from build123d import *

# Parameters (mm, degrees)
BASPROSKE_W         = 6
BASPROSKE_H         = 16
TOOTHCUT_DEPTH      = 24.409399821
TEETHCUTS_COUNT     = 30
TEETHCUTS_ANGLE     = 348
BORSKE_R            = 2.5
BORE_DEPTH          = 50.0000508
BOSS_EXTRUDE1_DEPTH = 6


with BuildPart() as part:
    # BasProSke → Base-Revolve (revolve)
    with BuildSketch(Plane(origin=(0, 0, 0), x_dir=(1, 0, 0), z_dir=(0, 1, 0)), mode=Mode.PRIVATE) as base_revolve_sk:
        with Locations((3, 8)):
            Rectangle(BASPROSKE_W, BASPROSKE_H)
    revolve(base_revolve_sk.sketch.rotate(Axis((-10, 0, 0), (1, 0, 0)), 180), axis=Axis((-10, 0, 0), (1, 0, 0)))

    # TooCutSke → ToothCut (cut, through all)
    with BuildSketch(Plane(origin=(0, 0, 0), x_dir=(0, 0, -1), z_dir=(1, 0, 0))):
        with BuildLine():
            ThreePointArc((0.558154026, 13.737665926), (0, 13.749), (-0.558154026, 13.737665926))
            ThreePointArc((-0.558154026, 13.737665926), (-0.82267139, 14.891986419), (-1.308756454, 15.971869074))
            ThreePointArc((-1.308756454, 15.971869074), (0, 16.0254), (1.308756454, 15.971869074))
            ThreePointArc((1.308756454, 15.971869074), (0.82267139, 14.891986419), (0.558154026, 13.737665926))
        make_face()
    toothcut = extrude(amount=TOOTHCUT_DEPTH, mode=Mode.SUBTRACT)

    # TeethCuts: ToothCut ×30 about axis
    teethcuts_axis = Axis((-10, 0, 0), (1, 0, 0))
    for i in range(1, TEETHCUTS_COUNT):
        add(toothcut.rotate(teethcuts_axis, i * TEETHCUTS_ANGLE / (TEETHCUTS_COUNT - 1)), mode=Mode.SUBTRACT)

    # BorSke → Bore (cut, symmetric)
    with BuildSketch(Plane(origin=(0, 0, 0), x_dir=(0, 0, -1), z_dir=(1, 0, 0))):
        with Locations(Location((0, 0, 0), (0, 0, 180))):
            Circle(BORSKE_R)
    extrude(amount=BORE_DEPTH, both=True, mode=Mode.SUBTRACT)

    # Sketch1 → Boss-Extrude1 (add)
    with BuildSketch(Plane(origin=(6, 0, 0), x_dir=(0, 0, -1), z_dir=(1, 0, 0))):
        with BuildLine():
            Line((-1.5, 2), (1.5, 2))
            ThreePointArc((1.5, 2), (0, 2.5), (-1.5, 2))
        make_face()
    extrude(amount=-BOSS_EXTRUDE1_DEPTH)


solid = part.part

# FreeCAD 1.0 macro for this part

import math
import FreeCAD as App
import Part
import Sketcher

V = App.Vector
Q = App.Units.Quantity

doc = App.newDocument("Part")
body = doc.addObject("PartDesign::Body", "Body")

# Sketch on XZ plane
sketch1 = doc.addObject("Sketcher::SketchObject", "Sketch")
body.addObject(sketch1)
sketch1.AttachmentSupport = (doc.XZ_Plane, [""])
sketch1.MapMode = "FlatFace"
sketch1.addGeometry(Part.LineSegment(V(0, -16, 0), V(0, 0, 0)), False)
sketch1.addGeometry(Part.LineSegment(V(0, 0, 0), V(6, 0, 0)), False)
sketch1.addGeometry(Part.LineSegment(V(6, 0, 0), V(6, -16, 0)), False)
sketch1.addGeometry(Part.LineSegment(V(6, -16, 0), V(0, -16, 0)), False)
sketch1.addConstraint(Sketcher.Constraint("Coincident", 0, 2, 1, 1))
sketch1.addConstraint(Sketcher.Constraint("Coincident", 1, 2, 2, 1))
sketch1.addConstraint(Sketcher.Constraint("Coincident", 2, 2, 3, 1))
sketch1.addConstraint(Sketcher.Constraint("Coincident", 3, 2, 0, 1))
sketch1.addConstraint(Sketcher.Constraint("Vertical", 0))
sketch1.addConstraint(Sketcher.Constraint("Horizontal", 1))
sketch1.addConstraint(Sketcher.Constraint("Vertical", 2))
sketch1.addConstraint(Sketcher.Constraint("Horizontal", 3))
sketch1.addConstraint(Sketcher.Constraint("Coincident", 0, 2, -1, 1))
sketch1.addConstraint(Sketcher.Constraint("DistanceX", 1, 1, 1, 2, Q("6 mm")))
sketch1.addConstraint(Sketcher.Constraint("DistanceY", 0, 1, 0, 2, Q("16 mm")))
revolution = doc.addObject("PartDesign::Revolution", "Revolution")
body.addObject(revolution)
revolution.Profile = sketch1
revolution.ReferenceAxis = (sketch1, ["H_Axis"])
revolution.Angle = 360

# Sketch on YZ plane
sketch2 = doc.addObject("Sketcher::SketchObject", "Sketch001")
body.addObject(sketch2)
sketch2.AttachmentSupport = (doc.YZ_Plane, [""])
sketch2.MapMode = "FlatFace"
sketch2.addGeometry(Part.ArcOfCircle(Part.Circle(V(0, 0, 0), V(0, 0, 1), 13.7), math.radians(-2.33), math.radians(2.33)), False)
sketch2.addGeometry(Part.ArcOfCircle(Part.Circle(V(13, -6.5, 0), V(0, 0, 1), 6), math.radians(60), math.radians(83)), False)
sketch2.addGeometry(Part.ArcOfCircle(Part.Circle(V(0, 0, 0), V(0, 0, 1), 16), math.radians(-4.68), math.radians(4.68)), False)
sketch2.addGeometry(Part.ArcOfCircle(Part.Circle(V(13, 6.5, 0), V(0, 0, 1), 6), math.radians(-83), math.radians(-60)), False)
sketch2.addConstraint(Sketcher.Constraint("Coincident", 0, 1, 1, 2))
sketch2.addConstraint(Sketcher.Constraint("Coincident", 1, 1, 2, 1))
sketch2.addConstraint(Sketcher.Constraint("Coincident", 2, 2, 3, 2))
sketch2.addConstraint(Sketcher.Constraint("Coincident", 3, 1, 0, 2))
sketch2.addConstraint(Sketcher.Constraint("Coincident", 0, 3, -1, 1))
sketch2.addConstraint(Sketcher.Constraint("Coincident", 2, 3, -1, 1))
sketch2.addConstraint(Sketcher.Constraint("Equal", 1, 3))
sketch2.addConstraint(Sketcher.Constraint("Symmetric", 1, 3, 3, 3, -1))
sketch2.addConstraint(Sketcher.Constraint("Radius", 1, Q("6 mm")))
sketch2.addConstraint(Sketcher.Constraint("Radius", 0, Q("13.749 mm")))
sketch2.addConstraint(Sketcher.Constraint("Radius", 2, Q("16.0254 mm")))
sketch2.addConstraint(Sketcher.Constraint("DistanceX", -1, 1, 1, 3, Q("12.981181 mm")))
sketch2.addConstraint(Sketcher.Constraint("DistanceX", -1, 1, 1, 1, Q("15.971869 mm")))
pocket1 = doc.addObject("PartDesign::Pocket", "Pocket")
body.addObject(pocket1)
pocket1.Profile = sketch2
pocket1.Type = "ThroughAll"
pocket1.Reversed = True
doc.recompute()

polarpattern = doc.addObject("PartDesign::PolarPattern", "PolarPattern")
body.addObject(polarpattern)
polarpattern.Originals = [pocket1]
polarpattern.Axis = (doc.X_Axis, [""])
polarpattern.Angle = 360
polarpattern.Occurrences = 30
body.Tip = polarpattern

# Sketch on YZ plane
sketch3 = doc.addObject("Sketcher::SketchObject", "Sketch002")
body.addObject(sketch3)
sketch3.AttachmentSupport = (doc.YZ_Plane, [""])
sketch3.MapMode = "FlatFace"
sketch3.addGeometry(Part.Circle(V(0, 0, 0), V(0, 0, 1), 2.5), False)
sketch3.addConstraint(Sketcher.Constraint("Coincident", 0, 3, -1, 1))
sketch3.addConstraint(Sketcher.Constraint("Diameter", 0, Q("5 mm")))
pocket2 = doc.addObject("PartDesign::Pocket", "Pocket001")
body.addObject(pocket2)
pocket2.Profile = sketch3
pocket2.Length = 100.000102
pocket2.Midplane = True

# Sketch on YZ plane
sketch4 = doc.addObject("Sketcher::SketchObject", "Sketch003")
body.addObject(sketch4)
sketch4.AttachmentSupport = (doc.YZ_Plane, [""])
sketch4.MapMode = "FlatFace"
sketch4.AttachmentOffset = App.Placement(V(0, 0, 6), App.Rotation())
sketch4.addGeometry(Part.LineSegment(V(2, 1.5, 0), V(2, -1.5, 0)), False)
sketch4.addGeometry(Part.ArcOfCircle(Part.Circle(V(0, 0, 0), V(0, 0, 1), 2.5), math.radians(-37), math.radians(37)), False)
sketch4.addConstraint(Sketcher.Constraint("Coincident", 0, 1, 1, 2))
sketch4.addConstraint(Sketcher.Constraint("Coincident", 1, 1, 0, 2))
sketch4.addConstraint(Sketcher.Constraint("Vertical", 0))
sketch4.addConstraint(Sketcher.Constraint("Coincident", 1, 3, -1, 1))
sketch4.addConstraint(Sketcher.Constraint("Radius", 1, Q("2.5 mm")))
sketch4.addConstraint(Sketcher.Constraint("DistanceY", 0, 2, 0, 1, Q("3 mm")))
pad1 = doc.addObject("PartDesign::Pad", "Pad")
body.addObject(pad1)
pad1.Profile = sketch4
pad1.Length = 6
pad1.Reversed = True

doc.recompute()
